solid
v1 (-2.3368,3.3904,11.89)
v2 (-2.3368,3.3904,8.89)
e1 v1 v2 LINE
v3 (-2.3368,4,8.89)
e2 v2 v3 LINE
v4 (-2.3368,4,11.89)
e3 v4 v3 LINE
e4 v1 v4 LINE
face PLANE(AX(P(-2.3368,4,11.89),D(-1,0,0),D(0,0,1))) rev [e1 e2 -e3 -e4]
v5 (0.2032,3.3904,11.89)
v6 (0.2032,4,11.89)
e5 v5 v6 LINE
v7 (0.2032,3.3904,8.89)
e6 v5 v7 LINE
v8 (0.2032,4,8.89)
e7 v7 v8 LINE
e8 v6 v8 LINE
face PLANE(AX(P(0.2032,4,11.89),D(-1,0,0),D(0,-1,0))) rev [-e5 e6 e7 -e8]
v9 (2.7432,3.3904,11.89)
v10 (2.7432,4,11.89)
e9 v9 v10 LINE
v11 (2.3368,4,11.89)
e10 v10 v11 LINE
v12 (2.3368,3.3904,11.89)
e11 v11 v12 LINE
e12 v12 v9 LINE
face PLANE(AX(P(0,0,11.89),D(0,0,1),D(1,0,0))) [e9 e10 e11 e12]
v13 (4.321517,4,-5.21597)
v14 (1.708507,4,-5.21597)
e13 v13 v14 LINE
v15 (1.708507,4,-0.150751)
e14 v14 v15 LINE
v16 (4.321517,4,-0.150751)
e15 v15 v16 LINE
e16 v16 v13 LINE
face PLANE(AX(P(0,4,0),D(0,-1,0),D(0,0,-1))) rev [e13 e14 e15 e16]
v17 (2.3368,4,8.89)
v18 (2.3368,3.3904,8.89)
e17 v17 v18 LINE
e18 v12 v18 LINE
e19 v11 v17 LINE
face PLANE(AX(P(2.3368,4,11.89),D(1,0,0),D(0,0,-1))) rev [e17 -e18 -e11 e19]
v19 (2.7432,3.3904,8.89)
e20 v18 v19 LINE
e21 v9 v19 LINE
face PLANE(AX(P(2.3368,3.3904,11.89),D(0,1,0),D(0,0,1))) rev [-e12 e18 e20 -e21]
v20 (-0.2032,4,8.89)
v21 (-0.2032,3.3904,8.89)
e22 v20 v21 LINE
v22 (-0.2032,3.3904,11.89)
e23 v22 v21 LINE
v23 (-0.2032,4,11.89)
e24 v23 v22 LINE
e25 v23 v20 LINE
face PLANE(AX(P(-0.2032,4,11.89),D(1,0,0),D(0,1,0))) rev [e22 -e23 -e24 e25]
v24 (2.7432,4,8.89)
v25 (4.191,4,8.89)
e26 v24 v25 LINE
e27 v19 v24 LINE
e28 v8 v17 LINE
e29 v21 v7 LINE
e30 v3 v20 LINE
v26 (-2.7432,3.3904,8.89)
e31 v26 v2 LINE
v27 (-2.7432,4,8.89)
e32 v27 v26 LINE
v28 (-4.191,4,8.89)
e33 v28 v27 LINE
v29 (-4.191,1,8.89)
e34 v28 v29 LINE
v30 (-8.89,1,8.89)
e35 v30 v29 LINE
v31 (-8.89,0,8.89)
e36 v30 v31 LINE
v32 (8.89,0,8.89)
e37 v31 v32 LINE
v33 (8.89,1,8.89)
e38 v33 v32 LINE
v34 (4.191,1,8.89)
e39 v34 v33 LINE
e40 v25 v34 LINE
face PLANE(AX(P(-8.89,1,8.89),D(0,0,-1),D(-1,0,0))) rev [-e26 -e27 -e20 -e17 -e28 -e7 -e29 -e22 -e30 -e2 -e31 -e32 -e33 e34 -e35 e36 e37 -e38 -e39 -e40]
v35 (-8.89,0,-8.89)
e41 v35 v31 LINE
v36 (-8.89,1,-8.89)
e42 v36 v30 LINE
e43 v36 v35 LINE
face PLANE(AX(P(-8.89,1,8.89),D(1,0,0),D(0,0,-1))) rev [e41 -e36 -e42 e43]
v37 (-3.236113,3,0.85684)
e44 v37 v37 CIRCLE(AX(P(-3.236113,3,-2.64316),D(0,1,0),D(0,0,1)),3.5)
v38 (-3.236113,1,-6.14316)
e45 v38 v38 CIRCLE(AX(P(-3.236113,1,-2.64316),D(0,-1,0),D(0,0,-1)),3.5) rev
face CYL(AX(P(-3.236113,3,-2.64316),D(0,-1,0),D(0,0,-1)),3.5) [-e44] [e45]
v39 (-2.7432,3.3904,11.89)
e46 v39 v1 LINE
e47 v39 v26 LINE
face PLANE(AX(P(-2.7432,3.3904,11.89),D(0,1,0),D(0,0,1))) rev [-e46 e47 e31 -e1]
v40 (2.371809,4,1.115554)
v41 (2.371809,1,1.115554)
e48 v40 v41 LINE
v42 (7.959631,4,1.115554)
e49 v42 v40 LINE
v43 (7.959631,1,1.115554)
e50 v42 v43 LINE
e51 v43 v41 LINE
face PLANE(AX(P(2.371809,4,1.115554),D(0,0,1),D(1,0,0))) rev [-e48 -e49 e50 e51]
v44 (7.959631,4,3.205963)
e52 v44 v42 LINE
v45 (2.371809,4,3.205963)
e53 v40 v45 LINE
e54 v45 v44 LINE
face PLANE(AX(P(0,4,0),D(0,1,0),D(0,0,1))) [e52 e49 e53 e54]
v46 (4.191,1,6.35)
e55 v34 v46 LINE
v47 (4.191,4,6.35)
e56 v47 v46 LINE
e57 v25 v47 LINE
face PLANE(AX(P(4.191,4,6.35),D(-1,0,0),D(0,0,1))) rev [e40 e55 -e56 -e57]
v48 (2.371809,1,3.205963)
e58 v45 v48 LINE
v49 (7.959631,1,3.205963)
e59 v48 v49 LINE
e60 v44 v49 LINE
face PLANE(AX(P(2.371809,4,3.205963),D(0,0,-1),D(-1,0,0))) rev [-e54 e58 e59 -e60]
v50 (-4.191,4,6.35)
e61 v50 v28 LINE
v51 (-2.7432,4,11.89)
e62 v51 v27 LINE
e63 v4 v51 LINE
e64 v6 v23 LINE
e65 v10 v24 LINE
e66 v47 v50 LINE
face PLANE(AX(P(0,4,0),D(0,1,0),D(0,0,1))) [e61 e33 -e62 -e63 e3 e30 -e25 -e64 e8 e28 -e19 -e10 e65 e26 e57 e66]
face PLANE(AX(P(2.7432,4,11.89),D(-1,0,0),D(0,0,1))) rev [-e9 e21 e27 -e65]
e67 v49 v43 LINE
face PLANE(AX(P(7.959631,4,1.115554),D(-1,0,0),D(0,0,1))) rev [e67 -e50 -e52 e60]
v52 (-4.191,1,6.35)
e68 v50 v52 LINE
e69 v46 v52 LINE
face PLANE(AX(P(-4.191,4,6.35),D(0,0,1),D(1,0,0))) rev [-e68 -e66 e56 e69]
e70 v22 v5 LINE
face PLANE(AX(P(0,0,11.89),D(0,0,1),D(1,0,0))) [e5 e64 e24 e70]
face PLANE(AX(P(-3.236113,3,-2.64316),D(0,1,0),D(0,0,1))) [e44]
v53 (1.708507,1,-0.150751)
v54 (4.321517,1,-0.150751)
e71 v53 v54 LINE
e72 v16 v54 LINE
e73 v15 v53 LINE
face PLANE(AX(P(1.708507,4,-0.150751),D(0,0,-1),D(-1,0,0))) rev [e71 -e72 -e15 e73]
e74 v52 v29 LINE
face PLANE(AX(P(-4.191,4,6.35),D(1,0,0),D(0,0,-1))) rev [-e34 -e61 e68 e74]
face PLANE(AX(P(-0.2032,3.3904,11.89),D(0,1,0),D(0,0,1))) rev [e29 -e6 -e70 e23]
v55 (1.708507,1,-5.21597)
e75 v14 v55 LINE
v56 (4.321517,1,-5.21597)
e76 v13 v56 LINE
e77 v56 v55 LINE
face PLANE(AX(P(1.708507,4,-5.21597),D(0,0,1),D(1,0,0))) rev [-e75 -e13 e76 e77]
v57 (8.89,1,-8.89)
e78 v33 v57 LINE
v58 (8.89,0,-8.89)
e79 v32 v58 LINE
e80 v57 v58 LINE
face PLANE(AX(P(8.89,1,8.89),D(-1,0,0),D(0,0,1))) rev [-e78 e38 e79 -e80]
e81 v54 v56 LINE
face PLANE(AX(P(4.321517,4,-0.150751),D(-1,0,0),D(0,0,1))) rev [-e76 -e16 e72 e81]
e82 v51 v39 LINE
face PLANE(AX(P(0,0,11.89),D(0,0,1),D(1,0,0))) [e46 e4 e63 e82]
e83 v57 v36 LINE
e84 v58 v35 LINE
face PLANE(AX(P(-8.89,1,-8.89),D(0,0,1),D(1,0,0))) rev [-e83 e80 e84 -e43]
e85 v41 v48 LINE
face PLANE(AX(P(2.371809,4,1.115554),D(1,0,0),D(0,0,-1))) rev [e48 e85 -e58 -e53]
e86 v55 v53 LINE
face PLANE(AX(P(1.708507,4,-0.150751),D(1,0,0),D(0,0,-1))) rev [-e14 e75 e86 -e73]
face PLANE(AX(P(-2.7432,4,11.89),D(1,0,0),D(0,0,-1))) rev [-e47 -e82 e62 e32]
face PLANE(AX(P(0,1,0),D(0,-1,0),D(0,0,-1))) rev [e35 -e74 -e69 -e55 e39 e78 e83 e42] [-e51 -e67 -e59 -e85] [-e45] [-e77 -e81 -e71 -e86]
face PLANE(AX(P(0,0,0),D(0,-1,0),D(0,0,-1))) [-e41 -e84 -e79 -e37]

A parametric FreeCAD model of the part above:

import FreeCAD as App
import Part
import Sketcher
Q = App.Units.Quantity


def add_polygon(sketch, points):
    """Adds a closed chain of lines whose ends are joined by coincident constraints."""
    first, n = sketch.GeometryCount, len(points)
    for a, b in zip(points, points[1:] + points[:1]):
        sketch.addGeometry(Part.LineSegment(App.Vector(*a, 0), App.Vector(*b, 0)), False)
    for i in range(n):
        sketch.addConstraint(Sketcher.Constraint("Coincident", first + i, 2, first + (i + 1) % n, 1))

doc = App.newDocument("Part")
body = doc.addObject("PartDesign::Body", "Body")

sketch1 = body.newObject("Sketcher::SketchObject", "Sketch")
sketch1.AttachmentSupport = (doc.getObject("XZ_Plane"), [""])
sketch1.MapMode = "FlatFace"
add_polygon(sketch1, [(-9, -9), (-9, 9), (9, 9), (9, -9)])
sketch1.addConstraint(Sketcher.Constraint("Vertical", 0))
sketch1.addConstraint(Sketcher.Constraint("Horizontal", 1))
sketch1.addConstraint(Sketcher.Constraint("Vertical", 2))
sketch1.addConstraint(Sketcher.Constraint("Horizontal", 3))
sketch1.addConstraint(Sketcher.Constraint("Symmetric", 0, 2, 2, 2, -1, 1))
sketch1.addConstraint(Sketcher.Constraint("Equal", 3, 0))
sketch1.addConstraint(Sketcher.Constraint("DistanceX", 1, 1, 1, 2, Q("0.7 in")))
pad1 = body.newObject("PartDesign::Pad", "Pad")
pad1.Profile = sketch1
pad1.Length = 1
pad1.Reversed = True

sketch2 = body.newObject("Sketcher::SketchObject", "Sketch001")
sketch2.AttachmentSupport = (doc.getObject("XZ_Plane"), [""])
sketch2.MapMode = "FlatFace"
sketch2.AttachmentOffset = App.Placement(App.Vector(0, 0, -1), App.Rotation())
sketch2.addGeometry(Part.Circle(App.Vector(-3.2, -2.6, 0), App.Vector(0, 0, 1), 3.5), False)
sketch2.addConstraint(Sketcher.Constraint("Diameter", 0, 7.0))
sketch2.addConstraint(Sketcher.Constraint("DistanceY", 0, 3, -1, 1, 2.64316))
sketch2.addConstraint(Sketcher.Constraint("DistanceX", 0, 3, -1, 1, 3.236113))
pad2 = body.newObject("PartDesign::Pad", "Pad001")
pad2.Profile = sketch2
pad2.Length = 2
pad2.Reversed = True

sketch3 = body.newObject("Sketcher::SketchObject", "Sketch002")
sketch3.AttachmentSupport = (doc.getObject("XZ_Plane"), [""])
sketch3.MapMode = "FlatFace"
sketch3.AttachmentOffset = App.Placement(App.Vector(0, 0, -1), App.Rotation())
add_polygon(sketch3, [(2.4, 1.1), (2.4, 3.2), (8, 3.2), (8, 1.1)])
add_polygon(sketch3, [(1.7, -5.2), (1.7, -0.2), (4.3, -0.2), (4.3, -5.2)])
sketch3.addConstraint(Sketcher.Constraint("Vertical", 0))
sketch3.addConstraint(Sketcher.Constraint("Horizontal", 1))
sketch3.addConstraint(Sketcher.Constraint("Vertical", 2))
sketch3.addConstraint(Sketcher.Constraint("Horizontal", 3))
sketch3.addConstraint(Sketcher.Constraint("Vertical", 4))
sketch3.addConstraint(Sketcher.Constraint("Horizontal", 5))
sketch3.addConstraint(Sketcher.Constraint("Vertical", 6))
sketch3.addConstraint(Sketcher.Constraint("Horizontal", 7))
sketch3.addConstraint(Sketcher.Constraint("DistanceX", 1, 1, 1, 2, 5.587822))
sketch3.addConstraint(Sketcher.Constraint("DistanceX", 5, 1, 5, 2, 2.61301))
sketch3.addConstraint(Sketcher.Constraint("DistanceY", 0, 1, 0, 2, 2.090408))
sketch3.addConstraint(Sketcher.Constraint("DistanceY", 4, 1, 4, 2, 5.06522))
sketch3.addConstraint(Sketcher.Constraint("DistanceX", -1, 1, 0, 2, 2.371809))
sketch3.addConstraint(Sketcher.Constraint("DistanceY", 4, 2, -1, 1, 0.150751))
sketch3.addConstraint(Sketcher.Constraint("DistanceY", -1, 1, 0, 2, 3.205963))
sketch3.addConstraint(Sketcher.Constraint("DistanceX", -1, 1, 4, 2, 1.708507))
pad3 = body.newObject("PartDesign::Pad", "Pad002")
pad3.Profile = sketch3
pad3.Length = 3
pad3.Reversed = True

sketch4 = body.newObject("Sketcher::SketchObject", "Sketch003")
sketch4.AttachmentSupport = (doc.getObject("XZ_Plane"), [""])
sketch4.MapMode = "FlatFace"
sketch4.AttachmentOffset = App.Placement(App.Vector(0, 0, -1), App.Rotation())
add_polygon(sketch4, [(-4.2, 6.3), (-4.2, 8.9), (4.2, 8.9), (4.2, 6.3)])
sketch4.addConstraint(Sketcher.Constraint("Vertical", 0))
sketch4.addConstraint(Sketcher.Constraint("Horizontal", 1))
sketch4.addConstraint(Sketcher.Constraint("Vertical", 2))
sketch4.addConstraint(Sketcher.Constraint("Horizontal", 3))
sketch4.addConstraint(Sketcher.Constraint("DistanceY", 0, 1, 0, 2, Q("0.1 in")))
sketch4.addConstraint(Sketcher.Constraint("DistanceX", 1, 1, 1, 2, Q("0.33 in")))
sketch4.addConstraint(Sketcher.Constraint("DistanceY", -1, 1, 0, 2, Q("0.35 in")))
sketch4.addConstraint(Sketcher.Constraint("DistanceX", 0, 2, -1, 1, Q("0.165 in")))
pad4 = body.newObject("PartDesign::Pad", "Pad003")
pad4.Profile = sketch4
pad4.Length = 3
pad4.Reversed = True

sketch5 = body.newObject("Sketcher::SketchObject", "Sketch004")
sketch5.AttachmentSupport = (doc.getObject("XY_Plane"), [""])
sketch5.MapMode = "FlatFace"
sketch5.AttachmentOffset = App.Placement(App.Vector(0, 0, 0.35 * 25.4), App.Rotation())
add_polygon(sketch5, [(-2.74, 4), (-2.74, 3.39), (-2.34, 3.39), (-2.34, 4)])
add_polygon(sketch5, [(-0.2, 4), (-0.2, 3.39), (0.2, 3.39), (0.2, 4)])
add_polygon(sketch5, [(2.34, 4), (2.34, 3.39), (2.74, 3.39), (2.74, 4)])
sketch5.addConstraint(Sketcher.Constraint("Vertical", 0))
sketch5.addConstraint(Sketcher.Constraint("Horizontal", 1))
sketch5.addConstraint(Sketcher.Constraint("Vertical", 2))
sketch5.addConstraint(Sketcher.Constraint("Horizontal", 3))
sketch5.addConstraint(Sketcher.Constraint("Vertical", 4))
sketch5.addConstraint(Sketcher.Constraint("Horizontal", 5))
sketch5.addConstraint(Sketcher.Constraint("Vertical", 6))
sketch5.addConstraint(Sketcher.Constraint("Horizontal", 7))
sketch5.addConstraint(Sketcher.Constraint("Vertical", 8))
sketch5.addConstraint(Sketcher.Constraint("Horizontal", 9))
sketch5.addConstraint(Sketcher.Constraint("Vertical", 10))
sketch5.addConstraint(Sketcher.Constraint("Horizontal", 11))
sketch5.addConstraint(Sketcher.Constraint("Symmetric", 1, 2, 8, 2, -2))
sketch5.addConstraint(Sketcher.Constraint("Symmetric", 3, 2, 10, 2, -2))
sketch5.addConstraint(Sketcher.Constraint("Horizontal", 1, 2, 4, 2))
sketch5.addConstraint(Sketcher.Constraint("Horizontal", 3, 2, 6, 2))
sketch5.addConstraint(Sketcher.Constraint("Equal", 3, 5))
sketch5.addConstraint(Sketcher.Constraint("DistanceX", 0, 2, 4, 2, Q("0.1 in")))
sketch5.addConstraint(Sketcher.Constraint("DistanceX", 4, 2, 8, 2, Q("0.1 in")))
sketch5.addConstraint(Sketcher.Constraint("DistanceX", 1, 1, 1, 2, Q("0.016 in")))
sketch5.addConstraint(Sketcher.Constraint("DistanceY", 0, 2, 0, 1, Q("0.024 in")))
sketch5.addConstraint(Sketcher.Constraint("DistanceY", -1, 1, 0, 2, 3.3904))
pad5 = body.newObject("PartDesign::Pad", "Pad004")
pad5.Profile = sketch5
pad5.Length = 3

doc.recompute()
